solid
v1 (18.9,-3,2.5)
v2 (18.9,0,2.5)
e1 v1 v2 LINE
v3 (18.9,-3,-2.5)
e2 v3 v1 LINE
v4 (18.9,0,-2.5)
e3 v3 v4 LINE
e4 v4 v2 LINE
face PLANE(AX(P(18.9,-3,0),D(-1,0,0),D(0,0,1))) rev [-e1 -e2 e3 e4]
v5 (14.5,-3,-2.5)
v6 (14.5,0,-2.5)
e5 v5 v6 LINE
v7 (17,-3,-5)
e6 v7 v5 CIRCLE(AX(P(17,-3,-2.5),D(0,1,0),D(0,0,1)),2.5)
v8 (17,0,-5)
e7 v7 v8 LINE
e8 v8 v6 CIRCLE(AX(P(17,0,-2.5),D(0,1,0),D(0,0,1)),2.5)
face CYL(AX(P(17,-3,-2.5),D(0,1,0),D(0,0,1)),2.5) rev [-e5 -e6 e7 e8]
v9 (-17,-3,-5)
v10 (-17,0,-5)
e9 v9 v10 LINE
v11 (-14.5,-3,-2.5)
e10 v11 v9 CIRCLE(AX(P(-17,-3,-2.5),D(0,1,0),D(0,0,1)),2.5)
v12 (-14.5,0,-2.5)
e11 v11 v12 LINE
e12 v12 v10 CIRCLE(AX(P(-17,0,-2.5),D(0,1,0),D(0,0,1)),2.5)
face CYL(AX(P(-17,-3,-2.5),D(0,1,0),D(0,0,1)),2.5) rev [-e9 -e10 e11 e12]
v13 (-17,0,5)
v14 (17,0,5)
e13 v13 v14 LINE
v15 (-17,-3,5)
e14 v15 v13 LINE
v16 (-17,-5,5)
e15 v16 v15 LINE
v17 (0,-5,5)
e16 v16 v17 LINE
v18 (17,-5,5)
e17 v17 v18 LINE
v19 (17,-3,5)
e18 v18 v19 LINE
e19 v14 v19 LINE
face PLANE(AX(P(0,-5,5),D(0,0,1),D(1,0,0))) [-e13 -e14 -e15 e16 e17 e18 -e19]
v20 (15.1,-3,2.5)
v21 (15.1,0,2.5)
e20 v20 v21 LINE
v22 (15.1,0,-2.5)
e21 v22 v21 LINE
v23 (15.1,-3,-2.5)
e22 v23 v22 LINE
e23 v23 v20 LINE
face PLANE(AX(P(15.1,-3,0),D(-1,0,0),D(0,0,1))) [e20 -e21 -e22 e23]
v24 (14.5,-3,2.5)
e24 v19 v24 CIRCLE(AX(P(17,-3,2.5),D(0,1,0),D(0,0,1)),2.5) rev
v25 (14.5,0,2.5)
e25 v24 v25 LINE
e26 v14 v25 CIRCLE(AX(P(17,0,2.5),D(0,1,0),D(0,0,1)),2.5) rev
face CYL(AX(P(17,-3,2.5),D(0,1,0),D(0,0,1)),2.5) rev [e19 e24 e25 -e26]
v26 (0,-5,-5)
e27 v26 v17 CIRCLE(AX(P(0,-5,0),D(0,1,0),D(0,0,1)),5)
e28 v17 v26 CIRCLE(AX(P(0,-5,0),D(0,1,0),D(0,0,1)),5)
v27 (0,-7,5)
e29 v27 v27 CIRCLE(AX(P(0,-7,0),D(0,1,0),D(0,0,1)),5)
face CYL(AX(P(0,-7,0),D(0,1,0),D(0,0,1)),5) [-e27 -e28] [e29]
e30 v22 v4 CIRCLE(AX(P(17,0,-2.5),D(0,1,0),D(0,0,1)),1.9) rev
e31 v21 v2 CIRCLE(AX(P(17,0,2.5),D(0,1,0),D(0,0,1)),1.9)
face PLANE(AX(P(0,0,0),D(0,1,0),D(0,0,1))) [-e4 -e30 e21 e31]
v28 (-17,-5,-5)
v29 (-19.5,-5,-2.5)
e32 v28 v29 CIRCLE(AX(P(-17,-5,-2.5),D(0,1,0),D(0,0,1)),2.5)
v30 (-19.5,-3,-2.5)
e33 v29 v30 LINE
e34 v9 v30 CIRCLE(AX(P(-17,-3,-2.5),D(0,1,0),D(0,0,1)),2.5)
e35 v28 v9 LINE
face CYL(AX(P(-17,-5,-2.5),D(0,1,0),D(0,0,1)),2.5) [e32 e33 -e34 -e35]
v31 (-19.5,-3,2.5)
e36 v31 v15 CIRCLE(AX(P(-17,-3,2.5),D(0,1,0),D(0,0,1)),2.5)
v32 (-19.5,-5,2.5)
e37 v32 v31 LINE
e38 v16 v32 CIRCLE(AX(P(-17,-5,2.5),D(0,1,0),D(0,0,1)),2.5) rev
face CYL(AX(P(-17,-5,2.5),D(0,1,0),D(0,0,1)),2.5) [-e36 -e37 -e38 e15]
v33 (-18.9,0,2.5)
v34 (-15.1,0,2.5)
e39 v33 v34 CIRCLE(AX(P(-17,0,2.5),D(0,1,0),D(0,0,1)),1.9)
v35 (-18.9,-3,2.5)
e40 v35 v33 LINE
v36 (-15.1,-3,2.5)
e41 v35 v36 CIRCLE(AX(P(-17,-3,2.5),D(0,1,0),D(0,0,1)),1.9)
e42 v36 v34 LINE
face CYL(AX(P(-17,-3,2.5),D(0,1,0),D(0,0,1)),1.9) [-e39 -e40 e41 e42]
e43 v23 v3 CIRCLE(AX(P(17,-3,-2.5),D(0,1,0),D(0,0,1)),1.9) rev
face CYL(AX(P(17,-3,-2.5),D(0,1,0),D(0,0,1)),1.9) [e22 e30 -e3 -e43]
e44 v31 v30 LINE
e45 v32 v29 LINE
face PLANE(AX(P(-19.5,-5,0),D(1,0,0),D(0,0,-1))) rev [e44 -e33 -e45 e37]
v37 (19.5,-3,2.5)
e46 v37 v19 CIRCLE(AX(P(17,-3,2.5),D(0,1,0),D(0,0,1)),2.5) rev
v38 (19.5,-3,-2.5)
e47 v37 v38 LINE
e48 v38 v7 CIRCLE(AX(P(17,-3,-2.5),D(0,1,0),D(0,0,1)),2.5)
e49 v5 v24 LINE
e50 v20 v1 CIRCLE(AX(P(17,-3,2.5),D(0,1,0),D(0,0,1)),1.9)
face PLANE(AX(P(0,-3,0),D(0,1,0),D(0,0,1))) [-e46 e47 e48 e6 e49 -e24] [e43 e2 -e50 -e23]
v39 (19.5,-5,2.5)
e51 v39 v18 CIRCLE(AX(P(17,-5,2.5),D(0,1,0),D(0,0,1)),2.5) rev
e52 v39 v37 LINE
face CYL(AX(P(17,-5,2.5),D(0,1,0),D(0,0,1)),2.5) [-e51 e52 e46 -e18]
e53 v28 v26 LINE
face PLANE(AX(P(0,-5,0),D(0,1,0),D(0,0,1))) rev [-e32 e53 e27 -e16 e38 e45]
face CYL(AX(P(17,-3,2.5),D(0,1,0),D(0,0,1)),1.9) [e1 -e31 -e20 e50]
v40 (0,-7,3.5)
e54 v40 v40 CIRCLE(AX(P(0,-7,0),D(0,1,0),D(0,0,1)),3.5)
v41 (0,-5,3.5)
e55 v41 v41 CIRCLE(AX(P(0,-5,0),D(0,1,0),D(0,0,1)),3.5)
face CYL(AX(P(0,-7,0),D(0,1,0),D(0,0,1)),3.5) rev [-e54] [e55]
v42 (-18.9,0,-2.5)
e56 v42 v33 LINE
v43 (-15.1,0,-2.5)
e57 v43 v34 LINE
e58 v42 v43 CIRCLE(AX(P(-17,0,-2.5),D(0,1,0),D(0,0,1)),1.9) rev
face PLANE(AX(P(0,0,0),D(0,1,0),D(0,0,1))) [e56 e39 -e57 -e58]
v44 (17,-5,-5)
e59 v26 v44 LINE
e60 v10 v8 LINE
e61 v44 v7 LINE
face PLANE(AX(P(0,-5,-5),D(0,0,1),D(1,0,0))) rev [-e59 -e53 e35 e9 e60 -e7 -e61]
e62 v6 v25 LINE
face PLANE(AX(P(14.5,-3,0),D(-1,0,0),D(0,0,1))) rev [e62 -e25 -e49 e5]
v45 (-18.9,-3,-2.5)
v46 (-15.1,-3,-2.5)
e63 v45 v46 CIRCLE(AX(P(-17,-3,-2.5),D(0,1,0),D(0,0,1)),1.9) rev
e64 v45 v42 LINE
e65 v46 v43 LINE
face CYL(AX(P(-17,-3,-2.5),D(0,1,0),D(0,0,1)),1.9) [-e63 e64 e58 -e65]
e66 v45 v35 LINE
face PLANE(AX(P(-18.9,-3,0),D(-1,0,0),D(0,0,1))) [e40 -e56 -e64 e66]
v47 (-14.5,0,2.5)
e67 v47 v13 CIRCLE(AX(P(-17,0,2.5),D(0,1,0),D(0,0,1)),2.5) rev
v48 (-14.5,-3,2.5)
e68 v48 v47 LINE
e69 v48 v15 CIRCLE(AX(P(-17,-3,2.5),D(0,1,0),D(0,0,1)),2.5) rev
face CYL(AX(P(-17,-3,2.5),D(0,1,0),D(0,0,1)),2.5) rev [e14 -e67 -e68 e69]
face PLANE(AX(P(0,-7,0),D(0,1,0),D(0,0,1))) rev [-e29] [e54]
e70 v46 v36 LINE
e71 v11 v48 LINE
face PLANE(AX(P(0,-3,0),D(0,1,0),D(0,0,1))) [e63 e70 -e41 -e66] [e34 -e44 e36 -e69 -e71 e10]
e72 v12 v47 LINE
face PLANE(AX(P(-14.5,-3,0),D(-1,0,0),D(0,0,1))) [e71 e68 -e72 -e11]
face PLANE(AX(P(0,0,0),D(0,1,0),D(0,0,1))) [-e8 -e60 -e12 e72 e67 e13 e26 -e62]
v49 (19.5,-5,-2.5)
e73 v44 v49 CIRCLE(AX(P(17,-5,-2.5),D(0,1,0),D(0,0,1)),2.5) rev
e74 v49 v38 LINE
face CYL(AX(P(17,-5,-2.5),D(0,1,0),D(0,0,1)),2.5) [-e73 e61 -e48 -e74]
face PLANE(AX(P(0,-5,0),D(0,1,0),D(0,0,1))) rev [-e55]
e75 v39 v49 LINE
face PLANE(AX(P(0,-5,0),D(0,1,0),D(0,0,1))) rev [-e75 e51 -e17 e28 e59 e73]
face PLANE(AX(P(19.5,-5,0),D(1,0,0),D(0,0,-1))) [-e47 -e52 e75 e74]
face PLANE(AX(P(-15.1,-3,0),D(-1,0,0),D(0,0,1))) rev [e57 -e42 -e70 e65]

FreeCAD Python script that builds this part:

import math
import FreeCAD as App
import Part
import Sketcher

V = App.Vector
Q = App.Units.Quantity

doc = App.newDocument("Part")
params = doc.addObject("Spreadsheet::Sheet", "Params")
for row, (alias, value) in enumerate([
    ("sketch1_radius", "2.5 mm"),
    ("sketch1_width", "34 mm"),
    ("sketch1_height", "5 mm"),
    ("pad1_length", "5 mm"),
    ("sketch2_diameter", "7 mm"),
    ("sketch2_radius", "5 mm"),
    ("pad2_length", "7 mm"),
    ("sketch3_radius", "2.5 mm"),
    ("sketch3_radius2", "1.9 mm"),
    ("sketch3_height", "5 mm"),
    ("pocket1_length", "3 mm"),
    ("sketch4_radius", "2.5 mm"),
    ("sketch4_radius2", "1.9 mm"),
    ("sketch4_height", "5 mm"),
    ("pocket2_length", "3 mm"),
], start=1):
    params.set(f"A{row}", alias)
    params.set(f"B{row}", "=" + value)
    params.setAlias(f"B{row}", alias)

body = doc.addObject("PartDesign::Body", "Body")

sketch1 = body.newObject("Sketcher::SketchObject", "Sketch")
sketch1.AttachmentSupport = (doc.getObject("XZ_Plane"), [""])
sketch1.MapMode = "FlatFace"
sketch1.addGeometry([
    Part.LineSegment(V(-17, 5, 0), V(17, 5, 0)),
    Part.ArcOfCircle(Part.Circle(V(17, 2.5, 0), V(0, 0, 1), 2.5), math.radians(0), math.radians(90)),
    Part.LineSegment(V(19.5, 2.5, 0), V(19.5, -2.5, 0)),
    Part.ArcOfCircle(Part.Circle(V(17, -2.5, 0), V(0, 0, 1), 2.5), math.radians(-90), math.radians(0)),
    Part.LineSegment(V(17, -5, 0), V(-17, -5, 0)),
    Part.ArcOfCircle(Part.Circle(V(-17, -2.5, 0), V(0, 0, 1), 2.5), math.radians(180), math.radians(270)),
    Part.LineSegment(V(-19.5, -2.5, 0), V(-19.5, 2.5, 0)),
    Part.ArcOfCircle(Part.Circle(V(-17, 2.5, 0), V(0, 0, 1), 2.5), math.radians(90), math.radians(180)),
], False)
sketch1.addConstraint([
    Sketcher.Constraint("Tangent", 0, 2, 1, 2),
    Sketcher.Constraint("Tangent", 1, 1, 2, 1),
    Sketcher.Constraint("Tangent", 2, 2, 3, 2),
    Sketcher.Constraint("Tangent", 3, 1, 4, 1),
    Sketcher.Constraint("Tangent", 4, 2, 5, 2),
    Sketcher.Constraint("Tangent", 5, 1, 6, 1),
    Sketcher.Constraint("Tangent", 6, 2, 7, 2),
    Sketcher.Constraint("Tangent", 7, 1, 0, 1),
    Sketcher.Constraint("Horizontal", 0),
    Sketcher.Constraint("Vertical", 2),
    Sketcher.Constraint("Horizontal", 4),
    Sketcher.Constraint("Vertical", 6),
    Sketcher.Constraint("Equal", 1, 3),
    Sketcher.Constraint("Equal", 3, 5),
    Sketcher.Constraint("Equal", 5, 7),
    Sketcher.Constraint("Symmetric", 1, 3, 5, 3, -1, 1),
    Sketcher.Constraint("Radius", 1, Q("2.5 mm")),
    Sketcher.Constraint("DistanceX", 0, 1, 0, 2, Q("34 mm")),
    Sketcher.Constraint("DistanceY", 2, 2, 2, 1, Q("5 mm")),
])
sketch1.setExpression("Constraints[16]", "Params.sketch1_radius")
sketch1.setExpression("Constraints[17]", "Params.sketch1_width")
sketch1.setExpression("Constraints[18]", "Params.sketch1_height")
pad1 = body.newObject("PartDesign::Pad", "Pad")
pad1.Profile = sketch1
pad1.setExpression("Length", "Params.pad1_length")

sketch2 = body.newObject("Sketcher::SketchObject", "Sketch001")
sketch2.AttachmentSupport = (doc.getObject("XZ_Plane"), [""])
sketch2.MapMode = "FlatFace"
sketch2.addGeometry([
    Part.ArcOfCircle(Part.Circle(V(0, 0, 0), V(0, 0, 1), 5), math.radians(180), math.radians(270)),
    Part.ArcOfCircle(Part.Circle(V(0, 0, 0), V(0, 0, 1), 5), math.radians(90), math.radians(180)),
    Part.ArcOfCircle(Part.Circle(V(0, 0, 0), V(0, 0, 1), 5), math.radians(0), math.radians(90)),
    Part.ArcOfCircle(Part.Circle(V(0, 0, 0), V(0, 0, 1), 5), math.radians(-90), math.radians(0)),
    Part.Circle(V(0, 0, 0), V(0, 0, 1), 3.5),
], False)
sketch2.addConstraint([
    Sketcher.Constraint("Tangent", 0, 1, 1, 2),
    Sketcher.Constraint("Tangent", 1, 1, 2, 2),
    Sketcher.Constraint("Tangent", 2, 1, 3, 2),
    Sketcher.Constraint("Tangent", 3, 1, 0, 2),
    Sketcher.Constraint("Coincident", 0, 3, -1, 1),
    Sketcher.Constraint("Coincident", 4, 3, -1, 1),
    Sketcher.Constraint("Equal", 0, 1),
    Sketcher.Constraint("PointOnObject", 0, 1, -1),
    Sketcher.Constraint("PointOnObject", 1, 1, -2),
    Sketcher.Constraint("PointOnObject", 2, 1, -1),
    Sketcher.Constraint("PointOnObject", 3, 1, -2),
    Sketcher.Constraint("Diameter", 4, Q("7 mm")),
    Sketcher.Constraint("Radius", 0, Q("5 mm")),
])
sketch2.setExpression("Constraints[11]", "Params.sketch2_diameter")
sketch2.setExpression("Constraints[12]", "Params.sketch2_radius")
pad2 = body.newObject("PartDesign::Pad", "Pad001")
pad2.Profile = sketch2
pad2.setExpression("Length", "Params.pad2_length")

sketch3 = body.newObject("Sketcher::SketchObject", "Sketch002")
sketch3.AttachmentSupport = (doc.getObject("XZ_Plane"), [""])
sketch3.MapMode = "FlatFace"
sketch3.addGeometry([
    Part.ArcOfCircle(Part.Circle(V(17, -2.5, 0), V(0, 0, 1), 2.5), math.radians(180), math.radians(270)),
    Part.LineSegment(V(14.5, -2.5, 0), V(14.5, 2.5, 0)),
    Part.ArcOfCircle(Part.Circle(V(17, 2.5, 0), V(0, 0, 1), 2.5), math.radians(90), math.radians(180)),
    Part.ArcOfCircle(Part.Circle(V(17, 2.5, 0), V(0, 0, 1), 2.5), math.radians(0), math.radians(90)),
    Part.LineSegment(V(19.5, 2.5, 0), V(19.5, -2.5, 0)),
    Part.ArcOfCircle(Part.Circle(V(17, -2.5, 0), V(0, 0, 1), 2.5), math.radians(-90), math.radians(0)),
    Part.ArcOfCircle(Part.Circle(V(17, -2.5, 0), V(0, 0, 1), 1.9), math.radians(-180), math.radians(-90)),
    Part.ArcOfCircle(Part.Circle(V(17, -2.5, 0), V(0, 0, 1), 1.9), math.radians(-90), math.radians(0)),
    Part.LineSegment(V(18.9, -2.5, 0), V(18.9, 2.5, 0)),
    Part.ArcOfCircle(Part.Circle(V(17, 2.5, 0), V(0, 0, 1), 1.9), math.radians(0), math.radians(90)),
    Part.ArcOfCircle(Part.Circle(V(17, 2.5, 0), V(0, 0, 1), 1.9), math.radians(90), math.radians(180)),
    Part.LineSegment(V(15.1, 2.5, 0), V(15.1, -2.5, 0)),
], False)
sketch3.addConstraint([
    Sketcher.Constraint("Tangent", 0, 1, 1, 1),
    Sketcher.Constraint("Tangent", 1, 2, 2, 2),
    Sketcher.Constraint("Tangent", 2, 1, 3, 2),
    Sketcher.Constraint("Tangent", 3, 1, 4, 1),
    Sketcher.Constraint("Tangent", 4, 2, 5, 2),
    Sketcher.Constraint("Tangent", 5, 1, 0, 2),
    Sketcher.Constraint("Tangent", 6, 2, 7, 1),
    Sketcher.Constraint("Tangent", 7, 2, 8, 1),
    Sketcher.Constraint("Tangent", 8, 2, 9, 1),
    Sketcher.Constraint("Tangent", 9, 2, 10, 1),
    Sketcher.Constraint("Tangent", 10, 2, 11, 1),
    Sketcher.Constraint("Tangent", 11, 2, 6, 1),
    Sketcher.Constraint("Vertical", 1),
    Sketcher.Constraint("Vertical", 4),
    Sketcher.Constraint("Vertical", 8),
    Sketcher.Constraint("Vertical", 11),
    Sketcher.Constraint("Coincident", 6, 3, 0, 3),
    Sketcher.Constraint("Coincident", 9, 3, 2, 3),
    Sketcher.Constraint("Equal", 0, 2),
    Sketcher.Constraint("Equal", 2, 3),
    Sketcher.Constraint("Equal", 6, 7),
    Sketcher.Constraint("Symmetric", 2, 1, 5, 1, -1),
    Sketcher.Constraint("Vertical", 10, 3, 2, 1),
    Sketcher.Constraint("Vertical", 5, 1, 6, 2),
    Sketcher.Constraint("Vertical", 6, 2, 9, 2),
    Sketcher.Constraint("Radius", 0, Q("2.5 mm")),
    Sketcher.Constraint("Radius", 6, Q("1.9 mm")),
    Sketcher.Constraint("DistanceY", 1, 1, 1, 2, Q("5 mm")),
    Sketcher.Constraint("DistanceX", -1, 1, 0, 3, Q("17 mm")),
])
sketch3.setExpression("Constraints[25]", "Params.sketch3_radius")
sketch3.setExpression("Constraints[26]", "Params.sketch3_radius2")
sketch3.setExpression("Constraints[27]", "Params.sketch3_height")
pocket1 = body.newObject("PartDesign::Pocket", "Pocket")
pocket1.Profile = sketch3
pocket1.setExpression("Length", "Params.pocket1_length")
pocket1.Reversed = True

sketch4 = body.newObject("Sketcher::SketchObject", "Sketch003")
sketch4.AttachmentSupport = (doc.getObject("XZ_Plane"), [""])
sketch4.MapMode = "FlatFace"
sketch4.addGeometry([
    Part.ArcOfCircle(Part.Circle(V(-17, 2.5, 0), V(0, 0, 1), 2.5), math.radians(90), math.radians(180)),
    Part.ArcOfCircle(Part.Circle(V(-17, 2.5, 0), V(0, 0, 1), 2.5), math.radians(0), math.radians(90)),
    Part.LineSegment(V(-14.5, 2.5, 0), V(-14.5, -2.5, 0)),
    Part.ArcOfCircle(Part.Circle(V(-17, -2.5, 0), V(0, 0, 1), 2.5), math.radians(-90), math.radians(0)),
    Part.ArcOfCircle(Part.Circle(V(-17, -2.5, 0), V(0, 0, 1), 2.5), math.radians(180), math.radians(270)),
    Part.LineSegment(V(-19.5, -2.5, 0), V(-19.5, 2.5, 0)),
    Part.ArcOfCircle(Part.Circle(V(-17, 2.5, 0), V(0, 0, 1), 1.9), math.radians(90), math.radians(180)),
    Part.LineSegment(V(-18.9, 2.5, 0), V(-18.9, -2.5, 0)),
    Part.ArcOfCircle(Part.Circle(V(-17, -2.5, 0), V(0, 0, 1), 1.9), math.radians(-180), math.radians(-90)),
    Part.ArcOfCircle(Part.Circle(V(-17, -2.5, 0), V(0, 0, 1), 1.9), math.radians(-90), math.radians(0)),
    Part.LineSegment(V(-15.1, -2.5, 0), V(-15.1, 2.5, 0)),
    Part.ArcOfCircle(Part.Circle(V(-17, 2.5, 0), V(0, 0, 1), 1.9), math.radians(0), math.radians(90)),
], False)
sketch4.addConstraint([
    Sketcher.Constraint("Tangent", 0, 1, 1, 2),
    Sketcher.Constraint("Tangent", 1, 1, 2, 1),
    Sketcher.Constraint("Tangent", 2, 2, 3, 2),
    Sketcher.Constraint("Tangent", 3, 1, 4, 2),
    Sketcher.Constraint("Tangent", 4, 1, 5, 1),
    Sketcher.Constraint("Tangent", 5, 2, 0, 2),
    Sketcher.Constraint("Tangent", 6, 2, 7, 1),
    Sketcher.Constraint("Tangent", 7, 2, 8, 1),
    Sketcher.Constraint("Tangent", 8, 2, 9, 1),
    Sketcher.Constraint("Tangent", 9, 2, 10, 1),
    Sketcher.Constraint("Tangent", 10, 2, 11, 1),
    Sketcher.Constraint("Tangent", 11, 2, 6, 1),
    Sketcher.Constraint("Vertical", 2),
    Sketcher.Constraint("Vertical", 5),
    Sketcher.Constraint("Vertical", 7),
    Sketcher.Constraint("Vertical", 10),
    Sketcher.Constraint("Coincident", 6, 3, 0, 3),
    Sketcher.Constraint("Coincident", 8, 3, 3, 3),
    Sketcher.Constraint("Equal", 0, 1),
    Sketcher.Constraint("Equal", 1, 3),
    Sketcher.Constraint("Equal", 8, 9),
    Sketcher.Constraint("Symmetric", 0, 1, 3, 1, -1),
    Sketcher.Constraint("Vertical", 11, 3, 0, 1),
    Sketcher.Constraint("Vertical", 3, 1, 8, 2),
    Sketcher.Constraint("Vertical", 8, 2, 11, 2),
    Sketcher.Constraint("Radius", 0, Q("2.5 mm")),
    Sketcher.Constraint("Radius", 6, Q("1.9 mm")),
    Sketcher.Constraint("DistanceY", 2, 2, 2, 1, Q("5 mm")),
    Sketcher.Constraint("DistanceX", 0, 3, -1, 1, Q("17 mm")),
])
sketch4.setExpression("Constraints[25]", "Params.sketch4_radius")
sketch4.setExpression("Constraints[26]", "Params.sketch4_radius2")
sketch4.setExpression("Constraints[27]", "Params.sketch4_height")
pocket2 = body.newObject("PartDesign::Pocket", "Pocket001")
pocket2.Profile = sketch4
pocket2.setExpression("Length", "Params.pocket2_length")
pocket2.Reversed = True

doc.recompute()
